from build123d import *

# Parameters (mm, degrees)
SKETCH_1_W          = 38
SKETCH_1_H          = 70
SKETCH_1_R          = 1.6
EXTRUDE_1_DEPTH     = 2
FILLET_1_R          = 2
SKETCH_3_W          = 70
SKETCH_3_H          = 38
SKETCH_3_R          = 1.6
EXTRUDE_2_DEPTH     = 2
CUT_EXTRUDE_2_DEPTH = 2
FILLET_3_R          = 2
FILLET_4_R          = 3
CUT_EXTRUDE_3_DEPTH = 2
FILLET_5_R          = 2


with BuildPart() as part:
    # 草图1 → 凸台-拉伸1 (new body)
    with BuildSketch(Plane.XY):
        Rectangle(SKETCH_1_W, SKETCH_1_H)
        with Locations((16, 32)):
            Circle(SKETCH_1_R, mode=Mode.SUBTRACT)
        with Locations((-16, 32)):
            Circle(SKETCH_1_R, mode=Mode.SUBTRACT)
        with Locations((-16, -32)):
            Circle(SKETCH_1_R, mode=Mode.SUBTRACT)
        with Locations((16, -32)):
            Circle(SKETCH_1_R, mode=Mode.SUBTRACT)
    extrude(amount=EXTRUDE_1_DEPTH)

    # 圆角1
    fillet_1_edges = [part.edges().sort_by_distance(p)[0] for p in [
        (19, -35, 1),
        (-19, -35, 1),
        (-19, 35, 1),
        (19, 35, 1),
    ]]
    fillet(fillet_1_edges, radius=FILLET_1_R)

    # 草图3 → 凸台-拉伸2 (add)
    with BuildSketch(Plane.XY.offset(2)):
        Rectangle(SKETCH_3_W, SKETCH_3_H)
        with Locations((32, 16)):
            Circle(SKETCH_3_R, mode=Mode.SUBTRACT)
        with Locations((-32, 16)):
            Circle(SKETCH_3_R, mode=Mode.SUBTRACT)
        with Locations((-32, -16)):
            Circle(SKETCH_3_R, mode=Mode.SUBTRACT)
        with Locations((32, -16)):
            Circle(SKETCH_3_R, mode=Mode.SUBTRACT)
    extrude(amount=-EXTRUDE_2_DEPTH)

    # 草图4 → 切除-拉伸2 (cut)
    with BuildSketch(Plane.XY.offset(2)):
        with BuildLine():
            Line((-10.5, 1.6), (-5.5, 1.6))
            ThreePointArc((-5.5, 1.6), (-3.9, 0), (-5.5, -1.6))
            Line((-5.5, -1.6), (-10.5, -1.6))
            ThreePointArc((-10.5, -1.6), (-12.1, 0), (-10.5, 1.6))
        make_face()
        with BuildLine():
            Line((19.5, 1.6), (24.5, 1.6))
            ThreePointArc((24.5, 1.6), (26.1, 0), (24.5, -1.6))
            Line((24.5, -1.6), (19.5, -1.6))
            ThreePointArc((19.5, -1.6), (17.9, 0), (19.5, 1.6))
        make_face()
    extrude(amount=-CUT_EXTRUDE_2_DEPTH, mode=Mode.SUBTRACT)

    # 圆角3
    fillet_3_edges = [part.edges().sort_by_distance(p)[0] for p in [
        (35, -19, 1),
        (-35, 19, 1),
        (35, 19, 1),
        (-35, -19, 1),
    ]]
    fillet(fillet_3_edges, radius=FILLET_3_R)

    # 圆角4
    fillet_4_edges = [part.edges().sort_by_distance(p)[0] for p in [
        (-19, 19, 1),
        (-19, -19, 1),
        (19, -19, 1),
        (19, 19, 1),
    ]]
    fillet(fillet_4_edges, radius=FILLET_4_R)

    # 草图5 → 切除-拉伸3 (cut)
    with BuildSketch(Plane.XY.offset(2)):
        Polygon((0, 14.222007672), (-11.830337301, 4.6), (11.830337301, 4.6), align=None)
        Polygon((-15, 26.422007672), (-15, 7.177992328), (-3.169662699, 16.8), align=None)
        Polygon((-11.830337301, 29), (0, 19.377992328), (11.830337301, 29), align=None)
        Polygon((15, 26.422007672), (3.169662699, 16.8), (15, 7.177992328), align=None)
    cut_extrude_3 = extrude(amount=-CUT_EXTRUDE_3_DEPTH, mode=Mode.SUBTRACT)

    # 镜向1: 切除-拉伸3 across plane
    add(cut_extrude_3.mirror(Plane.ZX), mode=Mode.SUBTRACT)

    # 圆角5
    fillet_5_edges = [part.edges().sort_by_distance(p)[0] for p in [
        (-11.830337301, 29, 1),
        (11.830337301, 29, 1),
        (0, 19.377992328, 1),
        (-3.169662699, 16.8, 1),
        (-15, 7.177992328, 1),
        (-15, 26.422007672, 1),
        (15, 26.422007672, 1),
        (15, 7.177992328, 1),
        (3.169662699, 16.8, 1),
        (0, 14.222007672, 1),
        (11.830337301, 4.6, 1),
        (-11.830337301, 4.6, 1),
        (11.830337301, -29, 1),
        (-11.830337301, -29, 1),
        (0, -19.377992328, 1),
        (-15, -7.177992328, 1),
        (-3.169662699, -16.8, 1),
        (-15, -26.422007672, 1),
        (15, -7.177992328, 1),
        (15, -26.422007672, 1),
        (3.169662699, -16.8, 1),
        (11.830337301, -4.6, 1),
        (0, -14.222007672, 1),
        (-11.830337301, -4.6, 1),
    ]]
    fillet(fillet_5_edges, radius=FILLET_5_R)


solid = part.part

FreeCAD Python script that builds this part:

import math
import FreeCAD as App
import Part
import Sketcher
from FreeCAD import Vector
Q = App.Units.Quantity


def edges_at(feature, points):
    """Names of the edges that pass closest to the given points."""
    edges = feature.Shape.Edges
    near = lambda p: min(range(len(edges)), key=lambda i: edges[i].distToShape(Part.Vertex(*p))[0])
    return sorted({f"Edge{near(p) + 1}" for p in points})


def add_polygon(sketch, points):
    """Adds a closed chain of lines whose ends are joined by coincident constraints."""
    first, n = sketch.GeometryCount, len(points)
    for a, b in zip(points, points[1:] + points[:1]):
        sketch.addGeometry(Part.LineSegment(App.Vector(*a, 0), App.Vector(*b, 0)), False)
    for i in range(n):
        sketch.addConstraint(Sketcher.Constraint("Coincident", first + i, 2, first + (i + 1) % n, 1))

doc = App.newDocument("Part")
body = doc.addObject("PartDesign::Body", "Body")

# Sketch on XY plane
sketch1 = body.newObject("Sketcher::SketchObject", "Sketch")
sketch1.AttachmentSupport = (doc.getObject("XY_Plane"), [""])
sketch1.MapMode = "FlatFace"
add_polygon(sketch1, [(-19, 35), (-19, -35), (19, -35), (19, 35)])  # lines 0-3
sketch1.addGeometry(Part.Circle(Vector(-16, -32, 0), Vector(0, 0, 1), 1.6), False)  # 4
sketch1.addGeometry(Part.Circle(Vector(16, -32, 0), Vector(0, 0, 1), 1.6), False)  # 5
sketch1.addGeometry(Part.Circle(Vector(-16, 32, 0), Vector(0, 0, 1), 1.6), False)  # 6
sketch1.addGeometry(Part.Circle(Vector(16, 32, 0), Vector(0, 0, 1), 1.6), False)  # 7
sketch1.addConstraint([
    Sketcher.Constraint("Vertical", 0),
    Sketcher.Constraint("Horizontal", 1),
    Sketcher.Constraint("Vertical", 2),
    Sketcher.Constraint("Horizontal", 3),
    Sketcher.Constraint("Equal", 4, 5),
    Sketcher.Constraint("Equal", 5, 6),
    Sketcher.Constraint("Equal", 6, 7),
    Sketcher.Constraint("Symmetric", 5, 3, 6, 3, -1, 1),
    Sketcher.Constraint("Symmetric", 4, 3, 7, 3, -1, 1),
    Sketcher.Constraint("Symmetric", 0, 2, 2, 2, -1, 1),
    Sketcher.Constraint("Symmetric", 4, 3, 5, 3, -2),
    Sketcher.Constraint("Diameter", 4, Q("3.2 mm")),
    Sketcher.Constraint("DistanceX", 1, 1, 1, 2, Q("38 mm")),
    Sketcher.Constraint("DistanceY", 0, 2, 0, 1, Q("70 mm")),
    Sketcher.Constraint("DistanceX", 4, 3, -1, 1, Q("16 mm")),
    Sketcher.Constraint("DistanceY", 4, 3, -1, 1, Q("32 mm")),
])
pad1 = body.newObject("PartDesign::Pad", "Pad")
pad1.Profile = sketch1
pad1.Length = 2
doc.recompute()

fillet = body.newObject("PartDesign::Fillet", "Fillet")
fillet.Base = (pad1, edges_at(pad1, [
    (19, -35, 1),
    (-19, -35, 1),
    (-19, 35, 1),
    (19, 35, 1),
]))
fillet.Radius = 2

# Sketch on XY plane
sketch2 = body.newObject("Sketcher::SketchObject", "Sketch001")
sketch2.AttachmentSupport = (doc.getObject("XY_Plane"), [""])
sketch2.MapMode = "FlatFace"
sketch2.AttachmentOffset = App.Placement(Vector(0, 0, 2), App.Rotation())
add_polygon(sketch2, [(-35, 19), (-35, -19), (35, -19), (35, 19)])  # lines 0-3
sketch2.addGeometry(Part.Circle(Vector(-32, -16, 0), Vector(0, 0, 1), 1.6), False)  # 4
sketch2.addGeometry(Part.Circle(Vector(32, -16, 0), Vector(0, 0, 1), 1.6), False)  # 5
sketch2.addGeometry(Part.Circle(Vector(-32, 16, 0), Vector(0, 0, 1), 1.6), False)  # 6
sketch2.addGeometry(Part.Circle(Vector(32, 16, 0), Vector(0, 0, 1), 1.6), False)  # 7
sketch2.addConstraint([
    Sketcher.Constraint("Vertical", 0),
    Sketcher.Constraint("Horizontal", 1),
    Sketcher.Constraint("Vertical", 2),
    Sketcher.Constraint("Horizontal", 3),
    Sketcher.Constraint("Equal", 4, 5),
    Sketcher.Constraint("Equal", 5, 6),
    Sketcher.Constraint("Equal", 6, 7),
    Sketcher.Constraint("Symmetric", 5, 3, 6, 3, -1, 1),
    Sketcher.Constraint("Symmetric", 4, 3, 7, 3, -1, 1),
    Sketcher.Constraint("Symmetric", 0, 2, 2, 2, -1, 1),
    Sketcher.Constraint("Symmetric", 4, 3, 5, 3, -2),
    Sketcher.Constraint("Diameter", 4, Q("3.2 mm")),
    Sketcher.Constraint("DistanceX", 1, 1, 1, 2, Q("70 mm")),
    Sketcher.Constraint("DistanceY", 0, 2, 0, 1, Q("38 mm")),
    Sketcher.Constraint("DistanceX", 4, 3, -1, 1, Q("32 mm")),
    Sketcher.Constraint("DistanceY", 4, 3, -1, 1, Q("16 mm")),
])
pad2 = body.newObject("PartDesign::Pad", "Pad001")
pad2.Profile = sketch2
pad2.Length = 2
pad2.Reversed = True

# Sketch on XY plane
sketch3 = body.newObject("Sketcher::SketchObject", "Sketch002")
sketch3.AttachmentSupport = (doc.getObject("XY_Plane"), [""])
sketch3.MapMode = "FlatFace"
sketch3.AttachmentOffset = App.Placement(Vector(0, 0, 2), App.Rotation())
sketch3.addGeometry([
    Part.LineSegment(Vector(-5.5, 1.6, 0), Vector(-10.5, 1.6, 0)),  # 0
    Part.ArcOfCircle(Part.Circle(Vector(-10.5, 0, 0), Vector(0, 0, 1), 1.6), math.radians(90), math.radians(270)),  # 1
    Part.LineSegment(Vector(-10.5, -1.6, 0), Vector(-5.5, -1.6, 0)),  # 2
    Part.ArcOfCircle(Part.Circle(Vector(-5.5, 0, 0), Vector(0, 0, 1), 1.6), math.radians(-90), math.radians(90)),  # 3
    Part.LineSegment(Vector(24.5, 1.6, 0), Vector(19.5, 1.6, 0)),  # 4
    Part.ArcOfCircle(Part.Circle(Vector(19.5, 0, 0), Vector(0, 0, 1), 1.6), math.radians(90), math.radians(270)),  # 5
    Part.LineSegment(Vector(19.5, -1.6, 0), Vector(24.5, -1.6, 0)),  # 6
    Part.ArcOfCircle(Part.Circle(Vector(24.5, 0, 0), Vector(0, 0, 1), 1.6), math.radians(-90), math.radians(90)),  # 7
], False)
sketch3.addConstraint([
    Sketcher.Constraint("Tangent", 0, 2, 1, 1),
    Sketcher.Constraint("Tangent", 1, 2, 2, 1),
    Sketcher.Constraint("Tangent", 2, 2, 3, 1),
    Sketcher.Constraint("Tangent", 3, 2, 0, 1),
    Sketcher.Constraint("Tangent", 4, 2, 5, 1),
    Sketcher.Constraint("Tangent", 5, 2, 6, 1),
    Sketcher.Constraint("Tangent", 6, 2, 7, 1),
    Sketcher.Constraint("Tangent", 7, 2, 4, 1),
    Sketcher.Constraint("Horizontal", 0),
    Sketcher.Constraint("Horizontal", 2),
    Sketcher.Constraint("Horizontal", 4),
    Sketcher.Constraint("Horizontal", 6),
    Sketcher.Constraint("Equal", 3, 5),
    Sketcher.Constraint("PointOnObject", 1, 3, -1),
    Sketcher.Constraint("PointOnObject", 5, 3, -1),
    Sketcher.Constraint("Equal", 2, 4),
    Sketcher.Constraint("Radius", 1, Q("1.6 mm")),
    Sketcher.Constraint("DistanceX", 0, 2, 0, 1, Q("5 mm")),
    Sketcher.Constraint("DistanceX", 3, 3, 5, 3, Q("25 mm")),
    Sketcher.Constraint("DistanceX", 1, 3, -1, 1, Q("10.5 mm")),
])
pocket1 = body.newObject("PartDesign::Pocket", "Pocket")
pocket1.Profile = sketch3
pocket1.Length = 2
doc.recompute()

fillet2 = body.newObject("PartDesign::Fillet", "Fillet001")
fillet2.Base = (pocket1, edges_at(pocket1, [
    (35, -19, 1),
    (-35, 19, 1),
    (35, 19, 1),
    (-35, -19, 1),
]))
fillet2.Radius = 2
doc.recompute()

fillet3 = body.newObject("PartDesign::Fillet", "Fillet002")
fillet3.Base = (fillet2, edges_at(fillet2, [
    (-19, 19, 1),
    (-19, -19, 1),
    (19, -19, 1),
    (19, 19, 1),
]))
fillet3.Radius = 3

# Sketch on XY plane
sketch4 = body.newObject("Sketcher::SketchObject", "Sketch003")
sketch4.AttachmentSupport = (doc.getObject("XY_Plane"), [""])
sketch4.MapMode = "FlatFace"
sketch4.AttachmentOffset = App.Placement(Vector(0, 0, 2), App.Rotation())
add_polygon(sketch4, [(0, 14.222008), (-11.830337, 4.6), (11.830337, 4.6)])  # lines 0-2
add_polygon(sketch4, [(-15, 26.422008), (-15, 7.177992), (-3.169663, 16.8)])  # lines 3-5
add_polygon(sketch4, [(-11.830337, 29), (0, 19.377992), (11.830337, 29)])  # lines 6-8
add_polygon(sketch4, [(15, 26.422008), (3.169663, 16.8), (15, 7.177992)])  # lines 9-11
sketch4.addConstraint([
    Sketcher.Constraint("Horizontal", 1),
    Sketcher.Constraint("Vertical", 3),
    Sketcher.Constraint("Horizontal", 8),
    Sketcher.Constraint("Vertical", 11),
    Sketcher.Constraint("Symmetric", 4, 2, 9, 2, -2),
    Sketcher.Constraint("Symmetric", 3, 2, 10, 2, -2),
    Sketcher.Constraint("PointOnObject", 2, 2, -2),
    Sketcher.Constraint("PointOnObject", 6, 2, -2),
    Sketcher.Constraint("Parallel", 0, 4),
    Sketcher.Constraint("Parallel", 2, 5),
    Sketcher.Constraint("Parallel", 5, 6),
    Sketcher.Constraint("Parallel", 4, 7),
    Sketcher.Constraint("Parallel", 7, 9),
    Sketcher.Constraint("Parallel", 6, 10),
    Sketcher.Constraint("Vertical", 1, 2, 7, 2),
    Sketcher.Constraint("Equal", 2, 4),
    Sketcher.Constraint("DistanceX", 3, 2, -1, 1, Q("15 mm")),
    Sketcher.Constraint("DistanceY", -1, 1, 7, 2, Q("29 mm")),
    Sketcher.Constraint("DistanceY", -1, 1, 0, 2, Q("4.6 mm")),
    Sketcher.Constraint("DistanceY", -1, 1, 4, 2, Q("16.8 mm")),
    Sketcher.Constraint("Distance", 0, Q("15.249259 mm")),
    Sketcher.Constraint("DistanceX", 1, 1, 1, 2, Q("23.660675 mm")),
])
pocket2 = body.newObject("PartDesign::Pocket", "Pocket001")
pocket2.Profile = sketch4
pocket2.Length = 2
doc.recompute()

mirrored = body.newObject("PartDesign::Mirrored", "Mirrored")
mirrored.Originals = [pocket2]
mirrored.MirrorPlane = (doc.getObject("XZ_Plane"), [""])
body.Tip = mirrored
doc.recompute()

fillet4 = body.newObject("PartDesign::Fillet", "Fillet003")
fillet4.Base = (mirrored, edges_at(mirrored, [
    (-11.83, 29, 1),
    (11.83, 29, 1),
    (0, 19.378, 1),
    (-3.17, 16.8, 1),
    (-15, 7.178, 1),
    (-15, 26.422, 1),
    (15, 26.422, 1),
    (15, 7.178, 1),
    (3.17, 16.8, 1),
    (0, 14.222, 1),
    (11.83, 4.6, 1),
    (-11.83, 4.6, 1),
    (11.83, -29, 1),
    (-11.83, -29, 1),
    (0, -19.378, 1),
    (-15, -7.178, 1),
    (-3.17, -16.8, 1),
    (-15, -26.422, 1),
    (15, -7.178, 1),
    (15, -26.422, 1),
    (3.17, -16.8, 1),
    (11.83, -4.6, 1),
    (0, -14.222, 1),
    (-11.83, -4.6, 1),
]))
fillet4.Radius = 2

doc.recompute()
